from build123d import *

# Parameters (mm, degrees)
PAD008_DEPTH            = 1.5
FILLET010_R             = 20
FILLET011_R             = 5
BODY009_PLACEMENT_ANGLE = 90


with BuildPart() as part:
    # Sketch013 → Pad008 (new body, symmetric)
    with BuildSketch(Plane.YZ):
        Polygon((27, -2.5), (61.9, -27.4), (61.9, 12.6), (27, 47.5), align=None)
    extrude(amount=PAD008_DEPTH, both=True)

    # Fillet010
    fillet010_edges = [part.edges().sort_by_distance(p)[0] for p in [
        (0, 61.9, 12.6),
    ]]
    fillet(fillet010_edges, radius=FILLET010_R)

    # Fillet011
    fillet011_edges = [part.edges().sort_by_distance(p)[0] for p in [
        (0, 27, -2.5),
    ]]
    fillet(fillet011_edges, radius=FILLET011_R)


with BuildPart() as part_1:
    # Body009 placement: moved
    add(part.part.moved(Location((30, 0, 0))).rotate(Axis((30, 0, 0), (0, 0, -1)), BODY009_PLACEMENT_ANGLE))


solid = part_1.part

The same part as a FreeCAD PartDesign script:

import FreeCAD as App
import Part
import Sketcher

V = App.Vector
Q = App.Units.Quantity


def edges_at(feature, points):
    """Names of the edges that pass closest to the given points."""
    edges = feature.Shape.Edges
    near = lambda p: min(range(len(edges)), key=lambda i: edges[i].distToShape(Part.Vertex(*p))[0])
    return sorted({f"Edge{near(p) + 1}" for p in points})


def add_polygon(sketch, points):
    """Adds a closed chain of lines whose ends are joined by coincident constraints."""
    first, n = sketch.GeometryCount, len(points)
    for a, b in zip(points, points[1:] + points[:1]):
        sketch.addGeometry(Part.LineSegment(App.Vector(*a, 0), App.Vector(*b, 0)), False)
    for i in range(n):
        sketch.addConstraint(Sketcher.Constraint("Coincident", first + i, 2, first + (i + 1) % n, 1))

doc = App.newDocument("Part")
body = doc.addObject("PartDesign::Body", "Body")

# Sketch on YZ plane
sketch1 = doc.addObject("Sketcher::SketchObject", "Sketch")
body.addObject(sketch1)
sketch1.AttachmentSupport = (doc.YZ_Plane, [""])
sketch1.MapMode = "FlatFace"
add_polygon(sketch1, [(27, -2), (62, -27), (62, 13), (27, 48)])  # lines 0-3
sketch1.addConstraint(Sketcher.Constraint("Vertical", 1))
sketch1.addConstraint(Sketcher.Constraint("Vertical", 3))
sketch1.addConstraint(Sketcher.Constraint("DistanceY", 1, 1, 1, 2, Q("40 mm")))
sketch1.addConstraint(Sketcher.Constraint("DistanceY", 3, 2, 3, 1, Q("50 mm")))
sketch1.addConstraint(Sketcher.Constraint("Angle", 2, Q("135 deg")))
sketch1.addConstraint(Sketcher.Constraint("DistanceX", -1, 1, 2, 2, Q("27 mm")))
sketch1.addConstraint(Sketcher.Constraint("DistanceX", -1, 1, 0, 2, Q("61.9 mm")))
sketch1.addConstraint(Sketcher.Constraint("DistanceY", 0, 2, -1, 1, Q("27.4 mm")))
pad1 = doc.addObject("PartDesign::Pad", "Pad")
body.addObject(pad1)
pad1.Profile = sketch1
pad1.Length = 3
pad1.Midplane = True
doc.recompute()

fillet = doc.addObject("PartDesign::Fillet", "Fillet")
body.addObject(fillet)
fillet.Base = (pad1, edges_at(pad1, [(0, 61.9, 12.6)]))
fillet.Radius = 20
doc.recompute()

fillet2 = doc.addObject("PartDesign::Fillet", "Fillet001")
body.addObject(fillet2)
fillet2.Base = (fillet, edges_at(fillet, [(0, 27, -2.5)]))
fillet2.Radius = 5
body2 = doc.addObject("PartDesign::Body", "Body001")
doc.recompute()

body.Placement = App.Placement(V(30, 0, 0), App.Rotation(V(0, 0, -1), 90))
boolean = doc.addObject("PartDesign::Boolean", "Boolean")
body2.addObject(boolean)
boolean.Type = "Fuse"
boolean.addObjects([body])

doc.recompute()
